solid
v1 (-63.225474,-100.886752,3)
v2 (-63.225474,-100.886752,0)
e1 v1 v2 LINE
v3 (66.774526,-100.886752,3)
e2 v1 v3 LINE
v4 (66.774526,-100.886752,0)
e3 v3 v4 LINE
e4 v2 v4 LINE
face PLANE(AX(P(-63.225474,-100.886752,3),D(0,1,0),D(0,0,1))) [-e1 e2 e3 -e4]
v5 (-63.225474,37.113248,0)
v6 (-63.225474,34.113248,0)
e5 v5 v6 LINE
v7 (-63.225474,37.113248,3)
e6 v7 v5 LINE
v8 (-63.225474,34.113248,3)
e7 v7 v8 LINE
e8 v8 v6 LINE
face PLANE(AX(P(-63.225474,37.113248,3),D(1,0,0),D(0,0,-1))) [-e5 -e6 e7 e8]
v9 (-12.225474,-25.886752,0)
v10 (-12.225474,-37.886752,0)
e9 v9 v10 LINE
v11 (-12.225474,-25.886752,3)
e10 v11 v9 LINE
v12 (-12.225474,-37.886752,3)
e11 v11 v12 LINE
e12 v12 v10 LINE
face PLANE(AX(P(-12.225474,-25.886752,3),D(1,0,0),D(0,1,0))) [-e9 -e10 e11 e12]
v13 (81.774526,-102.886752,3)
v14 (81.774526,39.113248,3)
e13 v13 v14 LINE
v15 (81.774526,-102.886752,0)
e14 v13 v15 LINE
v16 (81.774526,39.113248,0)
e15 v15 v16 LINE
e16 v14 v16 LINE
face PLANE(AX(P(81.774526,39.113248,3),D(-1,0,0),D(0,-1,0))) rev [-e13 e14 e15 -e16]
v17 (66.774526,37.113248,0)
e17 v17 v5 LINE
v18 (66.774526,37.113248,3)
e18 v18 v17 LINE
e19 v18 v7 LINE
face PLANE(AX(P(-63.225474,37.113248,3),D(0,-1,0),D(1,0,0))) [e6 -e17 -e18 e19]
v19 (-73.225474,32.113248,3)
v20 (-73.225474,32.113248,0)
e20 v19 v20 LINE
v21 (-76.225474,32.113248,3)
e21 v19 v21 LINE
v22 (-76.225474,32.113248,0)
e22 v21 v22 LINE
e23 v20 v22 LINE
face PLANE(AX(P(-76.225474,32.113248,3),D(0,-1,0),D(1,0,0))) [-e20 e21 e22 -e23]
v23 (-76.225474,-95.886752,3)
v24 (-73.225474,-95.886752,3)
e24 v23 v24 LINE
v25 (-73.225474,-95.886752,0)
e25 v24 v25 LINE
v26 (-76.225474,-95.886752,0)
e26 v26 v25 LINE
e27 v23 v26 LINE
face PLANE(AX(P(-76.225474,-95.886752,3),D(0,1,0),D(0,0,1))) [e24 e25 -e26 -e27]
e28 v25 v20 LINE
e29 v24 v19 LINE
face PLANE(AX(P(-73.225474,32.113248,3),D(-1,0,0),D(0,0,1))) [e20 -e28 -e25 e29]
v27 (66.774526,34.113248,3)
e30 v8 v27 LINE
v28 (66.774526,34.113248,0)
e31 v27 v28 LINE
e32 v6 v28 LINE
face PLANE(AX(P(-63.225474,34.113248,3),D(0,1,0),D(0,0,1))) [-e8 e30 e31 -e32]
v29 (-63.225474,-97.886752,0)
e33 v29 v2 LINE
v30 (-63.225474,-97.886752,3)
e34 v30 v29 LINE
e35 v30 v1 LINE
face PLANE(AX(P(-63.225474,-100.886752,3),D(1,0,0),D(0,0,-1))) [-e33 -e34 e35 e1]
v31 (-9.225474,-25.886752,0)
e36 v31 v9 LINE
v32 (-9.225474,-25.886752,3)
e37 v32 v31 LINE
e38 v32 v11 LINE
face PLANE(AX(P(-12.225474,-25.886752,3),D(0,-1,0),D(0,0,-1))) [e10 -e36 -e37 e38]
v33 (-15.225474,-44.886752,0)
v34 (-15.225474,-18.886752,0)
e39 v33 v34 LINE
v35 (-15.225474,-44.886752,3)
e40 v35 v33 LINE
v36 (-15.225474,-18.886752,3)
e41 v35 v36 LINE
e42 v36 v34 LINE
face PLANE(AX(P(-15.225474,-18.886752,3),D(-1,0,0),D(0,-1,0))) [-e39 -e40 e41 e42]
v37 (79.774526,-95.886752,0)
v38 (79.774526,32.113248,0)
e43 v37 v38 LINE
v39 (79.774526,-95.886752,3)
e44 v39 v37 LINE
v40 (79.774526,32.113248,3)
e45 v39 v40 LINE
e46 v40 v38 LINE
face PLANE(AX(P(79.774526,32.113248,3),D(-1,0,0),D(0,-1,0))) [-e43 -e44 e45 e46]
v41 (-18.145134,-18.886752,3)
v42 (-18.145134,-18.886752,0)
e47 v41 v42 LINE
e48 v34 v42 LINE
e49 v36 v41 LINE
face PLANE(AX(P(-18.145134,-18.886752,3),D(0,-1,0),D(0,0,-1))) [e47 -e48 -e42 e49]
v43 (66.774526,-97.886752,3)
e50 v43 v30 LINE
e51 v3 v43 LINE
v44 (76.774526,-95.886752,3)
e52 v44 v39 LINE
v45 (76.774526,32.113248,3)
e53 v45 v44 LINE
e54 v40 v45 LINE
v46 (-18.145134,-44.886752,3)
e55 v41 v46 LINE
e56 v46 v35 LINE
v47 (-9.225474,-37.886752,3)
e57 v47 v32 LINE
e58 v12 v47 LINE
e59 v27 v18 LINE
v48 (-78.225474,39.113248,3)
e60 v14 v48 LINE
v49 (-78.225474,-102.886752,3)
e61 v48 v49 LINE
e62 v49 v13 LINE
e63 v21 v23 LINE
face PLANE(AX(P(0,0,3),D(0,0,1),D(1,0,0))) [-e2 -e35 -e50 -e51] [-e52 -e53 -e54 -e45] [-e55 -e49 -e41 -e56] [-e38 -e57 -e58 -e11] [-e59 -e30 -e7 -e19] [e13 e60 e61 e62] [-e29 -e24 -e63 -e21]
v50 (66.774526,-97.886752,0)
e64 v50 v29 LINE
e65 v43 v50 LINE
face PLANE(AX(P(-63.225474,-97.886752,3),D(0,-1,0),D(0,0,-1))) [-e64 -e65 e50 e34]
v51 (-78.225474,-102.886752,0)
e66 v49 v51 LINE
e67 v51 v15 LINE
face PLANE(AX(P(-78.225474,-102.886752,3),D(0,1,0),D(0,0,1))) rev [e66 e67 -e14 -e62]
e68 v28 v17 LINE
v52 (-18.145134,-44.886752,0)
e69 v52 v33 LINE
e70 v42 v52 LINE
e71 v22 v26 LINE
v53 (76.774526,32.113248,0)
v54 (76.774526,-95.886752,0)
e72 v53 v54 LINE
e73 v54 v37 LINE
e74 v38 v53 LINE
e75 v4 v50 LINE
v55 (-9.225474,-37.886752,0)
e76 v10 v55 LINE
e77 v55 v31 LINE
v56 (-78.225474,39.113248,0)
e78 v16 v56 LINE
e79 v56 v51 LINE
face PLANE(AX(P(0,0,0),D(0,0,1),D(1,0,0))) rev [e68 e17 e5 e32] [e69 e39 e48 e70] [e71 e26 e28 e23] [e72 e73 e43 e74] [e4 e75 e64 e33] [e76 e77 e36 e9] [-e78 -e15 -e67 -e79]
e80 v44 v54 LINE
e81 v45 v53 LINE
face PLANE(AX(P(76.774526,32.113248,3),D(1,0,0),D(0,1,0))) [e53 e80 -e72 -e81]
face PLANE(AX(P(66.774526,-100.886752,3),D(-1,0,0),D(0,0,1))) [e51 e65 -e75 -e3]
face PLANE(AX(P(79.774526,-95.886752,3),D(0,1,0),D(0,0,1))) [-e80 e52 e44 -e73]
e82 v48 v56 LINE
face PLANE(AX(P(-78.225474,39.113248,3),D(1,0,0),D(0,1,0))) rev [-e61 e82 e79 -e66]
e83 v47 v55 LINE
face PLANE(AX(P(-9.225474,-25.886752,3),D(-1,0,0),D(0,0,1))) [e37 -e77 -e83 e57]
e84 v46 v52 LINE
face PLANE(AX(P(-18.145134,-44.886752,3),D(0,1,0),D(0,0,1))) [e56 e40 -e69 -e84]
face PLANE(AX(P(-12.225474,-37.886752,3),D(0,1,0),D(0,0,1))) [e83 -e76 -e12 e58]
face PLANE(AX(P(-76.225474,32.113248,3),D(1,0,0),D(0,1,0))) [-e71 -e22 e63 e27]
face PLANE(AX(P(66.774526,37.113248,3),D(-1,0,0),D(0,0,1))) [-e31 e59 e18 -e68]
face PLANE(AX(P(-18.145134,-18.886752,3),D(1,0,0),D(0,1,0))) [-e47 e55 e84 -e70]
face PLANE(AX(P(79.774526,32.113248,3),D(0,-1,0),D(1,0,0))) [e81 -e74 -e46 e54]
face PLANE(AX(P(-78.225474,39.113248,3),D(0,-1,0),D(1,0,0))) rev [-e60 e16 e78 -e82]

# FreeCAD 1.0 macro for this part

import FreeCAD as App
import Part
import Sketcher


def add_polygon(sketch, points):
    """Adds a closed chain of lines whose ends are joined by coincident constraints."""
    first, n = sketch.GeometryCount, len(points)
    for a, b in zip(points, points[1:] + points[:1]):
        sketch.addGeometry(Part.LineSegment(App.Vector(*a, 0), App.Vector(*b, 0)), False)
    for i in range(n):
        sketch.addConstraint(Sketcher.Constraint("Coincident", first + i, 2, first + (i + 1) % n, 1))

doc = App.newDocument("Part")
body = doc.addObject("PartDesign::Body", "Body")

sketch1 = doc.addObject("Sketcher::SketchObject", "Sketch")
body.addObject(sketch1)
sketch1.AttachmentSupport = (doc.XY_Plane, [""])
sketch1.MapMode = "FlatFace"
add_polygon(sketch1, [(-78.2, 39.1), (-78.2, -102.9), (81.8, -102.9), (81.8, 39.1)])
add_polygon(sketch1, [(66.8, -100.9), (-63.2, -100.9), (-63.2, -97.9), (66.8, -97.9)])
add_polygon(sketch1, [(-73.2, -95.9), (-76.2, -95.9), (-76.2, 32.1), (-73.2, 32.1)])
add_polygon(sketch1, [(-15.2, -44.9), (-18.1, -44.9), (-18.1, -18.9), (-15.2, -18.9)])
add_polygon(sketch1, [(-9.2, -37.9), (-12.2, -37.9), (-12.2, -25.9), (-9.2, -25.9)])
add_polygon(sketch1, [(79.8, -95.9), (76.8, -95.9), (76.8, 32.1), (79.8, 32.1)])
add_polygon(sketch1, [(66.8, 34.1), (-63.2, 34.1), (-63.2, 37.1), (66.8, 37.1)])
sketch1.addConstraint(Sketcher.Constraint("Vertical", 0))
sketch1.addConstraint(Sketcher.Constraint("Horizontal", 1))
sketch1.addConstraint(Sketcher.Constraint("Vertical", 2))
sketch1.addConstraint(Sketcher.Constraint("Horizontal", 3))
sketch1.addConstraint(Sketcher.Constraint("Horizontal", 4))
sketch1.addConstraint(Sketcher.Constraint("Vertical", 5))
sketch1.addConstraint(Sketcher.Constraint("Horizontal", 6))
sketch1.addConstraint(Sketcher.Constraint("Vertical", 7))
sketch1.addConstraint(Sketcher.Constraint("Horizontal", 8))
sketch1.addConstraint(Sketcher.Constraint("Vertical", 9))
sketch1.addConstraint(Sketcher.Constraint("Horizontal", 10))
sketch1.addConstraint(Sketcher.Constraint("Vertical", 11))
sketch1.addConstraint(Sketcher.Constraint("Horizontal", 12))
sketch1.addConstraint(Sketcher.Constraint("Vertical", 13))
sketch1.addConstraint(Sketcher.Constraint("Horizontal", 14))
sketch1.addConstraint(Sketcher.Constraint("Vertical", 15))
sketch1.addConstraint(Sketcher.Constraint("Horizontal", 16))
sketch1.addConstraint(Sketcher.Constraint("Vertical", 17))
sketch1.addConstraint(Sketcher.Constraint("Horizontal", 18))
sketch1.addConstraint(Sketcher.Constraint("Vertical", 19))
sketch1.addConstraint(Sketcher.Constraint("Horizontal", 20))
sketch1.addConstraint(Sketcher.Constraint("Vertical", 21))
sketch1.addConstraint(Sketcher.Constraint("Horizontal", 22))
sketch1.addConstraint(Sketcher.Constraint("Vertical", 23))
sketch1.addConstraint(Sketcher.Constraint("Horizontal", 24))
sketch1.addConstraint(Sketcher.Constraint("Vertical", 25))
sketch1.addConstraint(Sketcher.Constraint("Horizontal", 26))
sketch1.addConstraint(Sketcher.Constraint("Vertical", 27))
sketch1.addConstraint(Sketcher.Constraint("Horizontal", 11, 2, 20, 2))
sketch1.addConstraint(Sketcher.Constraint("Horizontal", 10, 2, 21, 2))
sketch1.addConstraint(Sketcher.Constraint("Vertical", 5, 2, 24, 2))
sketch1.addConstraint(Sketcher.Constraint("Vertical", 7, 2, 26, 2))
sketch1.addConstraint(Sketcher.Constraint("Equal", 10, 16))
sketch1.addConstraint(Sketcher.Constraint("Equal", 18, 20))
sketch1.addConstraint(Sketcher.Constraint("Equal", 22, 5))
sketch1.addConstraint(Sketcher.Constraint("Equal", 7, 25))
sketch1.addConstraint(Sketcher.Constraint("DistanceX", 1, 1, 1, 2, 160.0))
sketch1.addConstraint(Sketcher.Constraint("DistanceX", 4, 2, 4, 1, 130.0))
sketch1.addConstraint(Sketcher.Constraint("DistanceX", 8, 2, 8, 1, 3.0))
sketch1.addConstraint(Sketcher.Constraint("DistanceY", 0, 2, 0, 1, 142.0))
sketch1.addConstraint(Sketcher.Constraint("DistanceY", 9, 1, 9, 2, 128.0))
sketch1.addConstraint(Sketcher.Constraint("DistanceY", 13, 1, 13, 2, 26.0))
sketch1.addConstraint(Sketcher.Constraint("DistanceY", 17, 1, 17, 2, 12.0))
sketch1.addConstraint(Sketcher.Constraint("DistanceX", 0, 2, 4, 2, 15.0))
sketch1.addConstraint(Sketcher.Constraint("DistanceY", 0, 2, 4, 2, 2.0))
sketch1.addConstraint(Sketcher.Constraint("DistanceX", 0, 2, 8, 2, 2.0))
sketch1.addConstraint(Sketcher.Constraint("DistanceY", 0, 2, 8, 2, 7.0))
sketch1.addConstraint(Sketcher.Constraint("DistanceY", 5, 2, 12, 2, 53.0))
sketch1.addConstraint(Sketcher.Constraint("DistanceX", 10, 2, 14, 2, 58.0))
sketch1.addConstraint(Sketcher.Constraint("DistanceX", 15, 2, 16, 2, 3.0))
sketch1.addConstraint(Sketcher.Constraint("DistanceY", 15, 2, 16, 2, 7.0))
sketch1.addConstraint(Sketcher.Constraint("DistanceX", 20, 2, 1, 2, 5.0))
sketch1.addConstraint(Sketcher.Constraint("DistanceY", 10, 2, 24, 2, 2.0))
sketch1.addConstraint(Sketcher.Constraint("DistanceX", 12, 2, 12, 1, 2.91966))
sketch1.addConstraint(Sketcher.Constraint("DistanceX", 0, 2, -1, 1, 78.225474))
sketch1.addConstraint(Sketcher.Constraint("DistanceY", 0, 2, -1, 1, 102.886752))
pad1 = doc.addObject("PartDesign::Pad", "Pad")
body.addObject(pad1)
pad1.Profile = sketch1
pad1.Length = 3

doc.recompute()
